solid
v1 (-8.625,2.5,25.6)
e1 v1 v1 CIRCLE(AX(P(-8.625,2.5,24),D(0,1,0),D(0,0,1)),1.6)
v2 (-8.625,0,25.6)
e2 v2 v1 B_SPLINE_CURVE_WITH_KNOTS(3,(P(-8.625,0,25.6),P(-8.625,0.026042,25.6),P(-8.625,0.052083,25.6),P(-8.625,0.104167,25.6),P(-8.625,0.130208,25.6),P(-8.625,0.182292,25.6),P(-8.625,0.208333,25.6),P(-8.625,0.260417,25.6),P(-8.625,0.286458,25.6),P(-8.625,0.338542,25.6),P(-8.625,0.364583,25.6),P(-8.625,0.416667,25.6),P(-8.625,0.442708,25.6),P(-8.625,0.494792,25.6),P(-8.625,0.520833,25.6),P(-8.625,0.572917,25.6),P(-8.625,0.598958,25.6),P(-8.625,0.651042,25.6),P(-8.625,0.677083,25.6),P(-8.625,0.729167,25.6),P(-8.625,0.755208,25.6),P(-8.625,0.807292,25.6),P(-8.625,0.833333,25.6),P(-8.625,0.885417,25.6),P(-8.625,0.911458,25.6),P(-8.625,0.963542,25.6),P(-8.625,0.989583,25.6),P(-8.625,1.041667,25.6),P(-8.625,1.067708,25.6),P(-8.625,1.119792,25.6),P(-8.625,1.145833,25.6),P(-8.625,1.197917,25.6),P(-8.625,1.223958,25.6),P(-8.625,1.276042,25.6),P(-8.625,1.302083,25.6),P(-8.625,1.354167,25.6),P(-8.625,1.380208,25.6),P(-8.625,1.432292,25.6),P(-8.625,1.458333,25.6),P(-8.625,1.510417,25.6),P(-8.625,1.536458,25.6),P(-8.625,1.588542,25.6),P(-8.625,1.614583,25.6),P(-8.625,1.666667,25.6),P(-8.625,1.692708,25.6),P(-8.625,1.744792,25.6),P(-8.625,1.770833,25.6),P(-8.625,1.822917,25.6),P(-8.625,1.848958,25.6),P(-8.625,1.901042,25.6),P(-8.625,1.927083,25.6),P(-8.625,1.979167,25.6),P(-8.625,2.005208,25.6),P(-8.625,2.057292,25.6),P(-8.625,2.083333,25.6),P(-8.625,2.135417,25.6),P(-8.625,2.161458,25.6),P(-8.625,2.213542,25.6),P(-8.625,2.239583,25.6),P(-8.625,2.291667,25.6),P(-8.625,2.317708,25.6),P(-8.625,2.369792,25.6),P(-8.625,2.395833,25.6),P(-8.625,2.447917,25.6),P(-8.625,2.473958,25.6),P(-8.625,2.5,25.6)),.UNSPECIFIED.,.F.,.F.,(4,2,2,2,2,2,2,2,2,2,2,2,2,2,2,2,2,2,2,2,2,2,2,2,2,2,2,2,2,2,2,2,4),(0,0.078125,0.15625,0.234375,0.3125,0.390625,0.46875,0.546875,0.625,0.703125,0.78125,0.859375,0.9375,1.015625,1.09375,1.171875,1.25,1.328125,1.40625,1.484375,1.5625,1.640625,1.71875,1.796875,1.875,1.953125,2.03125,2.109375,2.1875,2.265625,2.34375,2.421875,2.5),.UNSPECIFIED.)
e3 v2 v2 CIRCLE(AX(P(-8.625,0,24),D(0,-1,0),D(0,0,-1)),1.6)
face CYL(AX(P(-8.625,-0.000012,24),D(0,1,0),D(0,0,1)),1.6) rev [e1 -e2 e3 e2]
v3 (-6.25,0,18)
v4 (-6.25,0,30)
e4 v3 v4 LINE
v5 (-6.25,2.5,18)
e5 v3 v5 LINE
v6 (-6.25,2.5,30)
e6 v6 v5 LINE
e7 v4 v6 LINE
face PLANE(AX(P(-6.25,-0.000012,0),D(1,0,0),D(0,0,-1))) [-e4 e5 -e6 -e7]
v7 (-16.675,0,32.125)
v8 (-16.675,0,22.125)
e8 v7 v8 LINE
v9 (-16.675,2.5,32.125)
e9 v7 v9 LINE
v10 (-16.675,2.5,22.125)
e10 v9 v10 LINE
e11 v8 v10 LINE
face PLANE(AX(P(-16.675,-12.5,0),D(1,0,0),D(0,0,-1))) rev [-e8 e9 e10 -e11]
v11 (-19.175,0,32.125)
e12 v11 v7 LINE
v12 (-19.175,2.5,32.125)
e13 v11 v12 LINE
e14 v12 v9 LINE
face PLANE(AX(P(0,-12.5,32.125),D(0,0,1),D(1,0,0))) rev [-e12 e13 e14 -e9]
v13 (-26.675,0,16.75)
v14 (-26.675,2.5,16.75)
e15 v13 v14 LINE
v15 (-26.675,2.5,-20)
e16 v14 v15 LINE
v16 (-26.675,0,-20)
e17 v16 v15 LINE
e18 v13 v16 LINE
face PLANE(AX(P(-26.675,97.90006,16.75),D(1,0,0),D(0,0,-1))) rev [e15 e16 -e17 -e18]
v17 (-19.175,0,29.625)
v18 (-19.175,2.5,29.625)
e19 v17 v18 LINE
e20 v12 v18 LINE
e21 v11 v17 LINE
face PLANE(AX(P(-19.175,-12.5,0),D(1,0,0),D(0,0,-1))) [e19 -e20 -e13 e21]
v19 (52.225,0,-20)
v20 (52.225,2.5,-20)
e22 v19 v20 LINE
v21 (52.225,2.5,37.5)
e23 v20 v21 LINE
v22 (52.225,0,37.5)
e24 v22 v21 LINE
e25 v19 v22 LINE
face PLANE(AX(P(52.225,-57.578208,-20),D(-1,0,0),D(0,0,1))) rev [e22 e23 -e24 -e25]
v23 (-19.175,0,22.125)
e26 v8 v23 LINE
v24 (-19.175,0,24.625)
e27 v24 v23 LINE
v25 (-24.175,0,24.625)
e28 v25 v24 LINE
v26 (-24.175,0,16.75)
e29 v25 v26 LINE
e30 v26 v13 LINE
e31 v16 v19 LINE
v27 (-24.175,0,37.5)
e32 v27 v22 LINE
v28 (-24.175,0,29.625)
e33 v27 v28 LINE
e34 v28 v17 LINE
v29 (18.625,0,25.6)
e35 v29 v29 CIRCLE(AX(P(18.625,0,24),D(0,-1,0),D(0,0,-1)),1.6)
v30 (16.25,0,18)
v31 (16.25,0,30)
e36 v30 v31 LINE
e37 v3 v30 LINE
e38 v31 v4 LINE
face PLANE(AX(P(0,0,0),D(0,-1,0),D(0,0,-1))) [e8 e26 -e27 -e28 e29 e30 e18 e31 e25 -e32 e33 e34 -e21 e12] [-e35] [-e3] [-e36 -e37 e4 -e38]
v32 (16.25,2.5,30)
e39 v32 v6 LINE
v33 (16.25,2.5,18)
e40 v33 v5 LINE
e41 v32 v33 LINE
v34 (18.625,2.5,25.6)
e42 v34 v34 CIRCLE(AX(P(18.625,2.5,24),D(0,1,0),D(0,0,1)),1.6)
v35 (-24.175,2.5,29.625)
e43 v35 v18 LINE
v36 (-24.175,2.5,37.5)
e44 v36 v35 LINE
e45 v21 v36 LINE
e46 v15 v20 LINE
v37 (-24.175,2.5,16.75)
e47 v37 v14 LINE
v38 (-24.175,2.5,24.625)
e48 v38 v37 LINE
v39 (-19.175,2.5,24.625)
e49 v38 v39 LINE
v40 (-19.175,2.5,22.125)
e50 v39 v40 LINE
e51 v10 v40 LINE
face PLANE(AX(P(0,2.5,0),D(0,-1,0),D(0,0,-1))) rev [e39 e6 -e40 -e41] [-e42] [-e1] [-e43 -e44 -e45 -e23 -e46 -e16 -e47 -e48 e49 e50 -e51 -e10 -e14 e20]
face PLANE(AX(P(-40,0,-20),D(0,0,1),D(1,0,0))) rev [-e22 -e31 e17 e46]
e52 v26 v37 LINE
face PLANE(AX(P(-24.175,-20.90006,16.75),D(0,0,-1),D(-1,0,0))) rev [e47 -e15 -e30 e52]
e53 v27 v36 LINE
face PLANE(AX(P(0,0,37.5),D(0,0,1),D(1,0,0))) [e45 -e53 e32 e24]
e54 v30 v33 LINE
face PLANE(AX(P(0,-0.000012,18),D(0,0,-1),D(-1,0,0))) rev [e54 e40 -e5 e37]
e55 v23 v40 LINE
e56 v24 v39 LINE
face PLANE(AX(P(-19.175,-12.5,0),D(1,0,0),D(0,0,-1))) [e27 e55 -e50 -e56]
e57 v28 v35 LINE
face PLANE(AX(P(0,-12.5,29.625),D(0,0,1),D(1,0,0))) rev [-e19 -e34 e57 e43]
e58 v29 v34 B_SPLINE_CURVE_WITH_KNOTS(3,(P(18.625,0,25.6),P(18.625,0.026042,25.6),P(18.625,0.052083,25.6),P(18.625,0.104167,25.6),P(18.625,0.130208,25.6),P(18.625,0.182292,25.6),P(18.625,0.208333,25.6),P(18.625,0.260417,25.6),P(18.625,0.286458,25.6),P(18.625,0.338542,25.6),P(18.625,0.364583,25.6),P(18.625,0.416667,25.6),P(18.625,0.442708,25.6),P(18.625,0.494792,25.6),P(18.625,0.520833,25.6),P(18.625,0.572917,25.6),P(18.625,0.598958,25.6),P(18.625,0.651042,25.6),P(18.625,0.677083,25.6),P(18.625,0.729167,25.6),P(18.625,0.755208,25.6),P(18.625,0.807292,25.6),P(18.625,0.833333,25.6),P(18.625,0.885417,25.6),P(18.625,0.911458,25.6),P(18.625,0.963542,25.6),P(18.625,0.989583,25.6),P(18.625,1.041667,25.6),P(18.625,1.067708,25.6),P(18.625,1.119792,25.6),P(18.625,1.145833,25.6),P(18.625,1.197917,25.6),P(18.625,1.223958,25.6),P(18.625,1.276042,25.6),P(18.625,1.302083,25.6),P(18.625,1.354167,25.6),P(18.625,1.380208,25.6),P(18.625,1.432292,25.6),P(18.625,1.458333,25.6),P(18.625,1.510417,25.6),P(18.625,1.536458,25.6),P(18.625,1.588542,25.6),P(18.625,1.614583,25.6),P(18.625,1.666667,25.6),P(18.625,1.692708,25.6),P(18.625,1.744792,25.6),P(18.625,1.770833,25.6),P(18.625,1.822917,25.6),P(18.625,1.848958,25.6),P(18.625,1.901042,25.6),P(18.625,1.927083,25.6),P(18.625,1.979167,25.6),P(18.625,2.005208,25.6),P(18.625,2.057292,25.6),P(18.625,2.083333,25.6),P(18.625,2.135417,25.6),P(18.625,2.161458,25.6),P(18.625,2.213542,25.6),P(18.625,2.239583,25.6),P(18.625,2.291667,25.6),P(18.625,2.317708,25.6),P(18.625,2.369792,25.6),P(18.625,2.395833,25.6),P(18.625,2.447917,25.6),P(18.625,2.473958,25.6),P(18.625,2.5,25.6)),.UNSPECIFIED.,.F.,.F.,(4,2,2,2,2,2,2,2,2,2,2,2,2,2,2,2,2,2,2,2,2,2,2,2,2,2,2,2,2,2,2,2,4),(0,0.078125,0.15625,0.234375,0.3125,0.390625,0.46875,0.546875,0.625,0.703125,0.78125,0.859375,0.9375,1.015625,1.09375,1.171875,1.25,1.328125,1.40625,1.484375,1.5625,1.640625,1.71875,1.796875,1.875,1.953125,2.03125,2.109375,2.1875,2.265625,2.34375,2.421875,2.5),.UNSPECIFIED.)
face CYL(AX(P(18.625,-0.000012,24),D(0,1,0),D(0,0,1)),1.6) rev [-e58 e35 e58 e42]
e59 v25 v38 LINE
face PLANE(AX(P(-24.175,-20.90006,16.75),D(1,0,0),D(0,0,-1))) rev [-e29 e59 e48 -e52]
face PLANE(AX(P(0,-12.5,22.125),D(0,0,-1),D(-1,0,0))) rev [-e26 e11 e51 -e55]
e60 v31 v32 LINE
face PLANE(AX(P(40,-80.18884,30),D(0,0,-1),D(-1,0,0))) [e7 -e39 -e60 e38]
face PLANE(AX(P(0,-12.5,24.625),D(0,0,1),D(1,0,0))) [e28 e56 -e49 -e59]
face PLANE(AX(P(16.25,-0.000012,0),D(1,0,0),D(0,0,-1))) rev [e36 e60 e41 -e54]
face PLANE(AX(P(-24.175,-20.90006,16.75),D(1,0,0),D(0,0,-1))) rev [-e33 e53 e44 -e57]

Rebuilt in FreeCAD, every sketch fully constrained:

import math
import FreeCAD as App
import Part
import Sketcher
from FreeCAD import Vector


def edges_at(feature, points):
    """Names of the edges that pass closest to the given points."""
    edges = feature.Shape.Edges
    near = lambda p: min(range(len(edges)), key=lambda i: edges[i].distToShape(Part.Vertex(*p))[0])
    return sorted({f"Edge{near(p) + 1}" for p in points})


def add_polygon(sketch, points):
    """Adds a closed chain of lines whose ends are joined by coincident constraints."""
    first, n = sketch.GeometryCount, len(points)
    for a, b in zip(points, points[1:] + points[:1]):
        sketch.addGeometry(Part.LineSegment(App.Vector(*a, 0), App.Vector(*b, 0)), False)
    for i in range(n):
        sketch.addConstraint(Sketcher.Constraint("Coincident", first + i, 2, first + (i + 1) % n, 1))

doc = App.newDocument("Part")
params = doc.addObject("Spreadsheet::Sheet", "Params")
for row, (alias, value) in enumerate([
    ("sketch1_width", "80 mm"),
    ("sketch1_height", "60 mm"),
    ("pad1_length", "2.5 mm"),
    ("sketch2_diameter", "3.2 mm"),
    ("sketch2_height", "12 mm"),
    ("sketch2_width", "22.5 mm"),
    ("sketch3_width", "2.5 mm"),
    ("sketch3_height", "20.5 mm"),
    ("pad2_length", "66.5 mm"),
    ("sketch4_width", "80 mm"),
    ("sketch4_height", "5.5 mm"),
    ("pad3_length", "2.5 mm"),
    ("sketch5_width", "2.5 mm"),
    ("sketch5_height", "5.5 mm"),
    ("pad4_length", "66.5 mm"),
    ("sketch6_width", "2.5 mm"),
    ("sketch6_height", "5.5 mm"),
    ("pocket2_length", "66.5 mm"),
    ("sketch7_width", "2.5 mm"),
    ("pad5_length", "66.5 mm"),
    ("sketch8_diameter", "9.5 mm"),
    ("pocket3_length", "2.5 mm"),
    ("sketch9_height", "23 mm"),
    ("sketch9_width", "2.5 mm"),
    ("pad6_length", "8 mm"),
    ("sketch10_width", "2.5 mm"),
    ("sketch10_height", "74.5 mm"),
    ("pad7_length", "2 mm"),
    ("sketch11_diameter", "3.2 mm"),
    ("pocket4_length", "2.5 mm"),
    ("sketch12_width", "80 mm"),
    ("sketch12_height", "2.5 mm"),
    ("pad8_length", "2 mm"),
    ("sketch13_width", "74.5 mm"),
    ("sketch13_height", "4.25 mm"),
    ("pocket5_length", "2.5 mm"),
    ("fillet_radius", "5 mm"),
    ("sketch14_height", "67.5 mm"),
    ("pad9_length", "2.5 mm"),
    ("sketch15_height", "10 mm"),
    ("sketch16_width", "2.5 mm"),
    ("sketch16_height", "20.75 mm"),
    ("pad10_length", "74.5 mm"),
    ("sketch17_diameter", "3.2 mm"),
    ("sketch17_radius", "4.75 mm"),
    ("pocket7_length", "2.5 mm"),
    ("sketch18_width", "2.5 mm"),
    ("sketch18_height", "20.75 mm"),
    ("pocket8_length", "74.5 mm"),
    ("sketch19_height", "20.75 mm"),
    ("pocket9_length", "2.5 mm"),
    ("fillet2_radius", "6 mm"),
    ("sketch20_height", "57.5 mm"),
    ("pocket10_length", "2.5 mm"),
    ("sketch21_width", "3 mm"),
    ("sketch21_height", "57.5 mm"),
    ("pocket11_length", "2.5 mm"),
    ("sketch22_width", "5 mm"),
    ("sketch22_height", "10 mm"),
    ("pocket12_length", "2.5 mm"),
    ("sketch23_width", "2.5 mm"),
    ("sketch23_height", "20.75 mm"),
    ("pocket13_length", "57.375 mm"),
], start=1):
    params.set(f"A{row}", alias)
    params.set(f"B{row}", "=" + value)
    params.setAlias(f"B{row}", alias)

body = doc.addObject("PartDesign::Body", "Body")

# Sketch on XZ plane
sketch1 = body.newObject("Sketcher::SketchObject", "Sketch")
sketch1.AttachmentSupport = (doc.getObject("XZ_Plane"), [""])
sketch1.MapMode = "FlatFace"
add_polygon(sketch1, [(-40, -30), (-40, 30), (40, 30), (40, -30)])  # lines 0-3
sketch1.addConstraint([
    Sketcher.Constraint("Vertical", 0),
    Sketcher.Constraint("Horizontal", 1),
    Sketcher.Constraint("Vertical", 2),
    Sketcher.Constraint("Horizontal", 3),
    Sketcher.Constraint("Symmetric", 0, 2, 2, 2, -1, 1),
    Sketcher.Constraint("DistanceX", 1, 1, 1, 2, 80.0),
    Sketcher.Constraint("DistanceY", 0, 1, 0, 2, 60.0),
])
sketch1.setExpression("Constraints[9]", "Params.sketch1_width")
sketch1.setExpression("Constraints[10]", "Params.sketch1_height")
pad1 = body.newObject("PartDesign::Pad", "Pad")
pad1.Profile = sketch1
pad1.setExpression("Length", "Params.pad1_length")
pad1.Reversed = True

# Sketch on XZ plane
sketch2 = body.newObject("Sketcher::SketchObject", "Sketch001")
sketch2.AttachmentSupport = (doc.getObject("XZ_Plane"), [""])
sketch2.MapMode = "FlatFace"
add_polygon(sketch2, [(16.2, 18), (-6.2, 18), (-6.2, 30), (16.2, 30)])  # lines 0-3
sketch2.addGeometry(Part.Circle(Vector(-8.6, 24, 0), Vector(0, 0, 1), 1.6), False)  # 4
sketch2.addGeometry(Part.Circle(Vector(18.6, 24, 0), Vector(0, 0, 1), 1.6), False)  # 5
sketch2.addConstraint([
    Sketcher.Constraint("Horizontal", 0),
    Sketcher.Constraint("Vertical", 1),
    Sketcher.Constraint("Horizontal", 2),
    Sketcher.Constraint("Vertical", 3),
    Sketcher.Constraint("Equal", 4, 5),
    Sketcher.Constraint("Horizontal", 4, 3, 5, 3),
    Sketcher.Constraint("Diameter", 4, 3.2),
    Sketcher.Constraint("DistanceY", 1, 1, 1, 2, 12.0),
    Sketcher.Constraint("DistanceX", 0, 2, 0, 1, 22.5),
    Sketcher.Constraint("DistanceY", -1, 1, 4, 3, 24.0),
    Sketcher.Constraint("DistanceY", -1, 1, 0, 2, 18.0),
    Sketcher.Constraint("DistanceX", 0, 2, -1, 1, 6.25),
    Sketcher.Constraint("DistanceX", 4, 3, 5, 3, 27.25),
    Sketcher.Constraint("DistanceX", 4, 3, -1, 1, 8.625),
])
sketch2.setExpression("Constraints[10]", "Params.sketch2_diameter")
sketch2.setExpression("Constraints[11]", "Params.sketch2_height")
sketch2.setExpression("Constraints[12]", "Params.sketch2_width")
pocket1 = body.newObject("PartDesign::Pocket", "Pocket")
pocket1.Profile = sketch2
pocket1.Type = "ThroughAll"
pocket1.Midplane = True

# Sketch on XZ plane
sketch3 = body.newObject("Sketcher::SketchObject", "Sketch002")
sketch3.AttachmentSupport = (doc.getObject("XZ_Plane"), [""])
sketch3.MapMode = "FlatFace"
sketch3.AttachmentOffset = App.Placement(Vector(0, 0, -2.5), App.Rotation())
add_polygon(sketch3, [(-40, 9.5), (-40, 30), (-37.5, 30), (-37.5, 9.5)])  # lines 0-3
sketch3.addConstraint([
    Sketcher.Constraint("Vertical", 0),
    Sketcher.Constraint("Horizontal", 1),
    Sketcher.Constraint("Vertical", 2),
    Sketcher.Constraint("Horizontal", 3),
    Sketcher.Constraint("DistanceX", 1, 1, 1, 2, 2.5),
    Sketcher.Constraint("DistanceY", 0, 1, 0, 2, 20.5),
    Sketcher.Constraint("DistanceX", 0, 2, -1, 1, 40.0),
    Sketcher.Constraint("DistanceY", -1, 1, 0, 2, 30.0),
])
sketch3.setExpression("Constraints[8]", "Params.sketch3_width")
sketch3.setExpression("Constraints[9]", "Params.sketch3_height")
pad2 = body.newObject("PartDesign::Pad", "Pad001")
pad2.Profile = sketch3
pad2.setExpression("Length", "Params.pad2_length")
pad2.Reversed = True

# Sketch on XZ plane
sketch4 = body.newObject("Sketcher::SketchObject", "Sketch003")
sketch4.AttachmentSupport = (doc.getObject("XZ_Plane"), [""])
sketch4.MapMode = "FlatFace"
sketch4.AttachmentOffset = App.Placement(Vector(0, 0, -2.5), App.Rotation())
add_polygon(sketch4, [(-40, 30), (-40, 36), (40, 36), (40, 30)])  # lines 0-3
sketch4.addConstraint([
    Sketcher.Constraint("Vertical", 0),
    Sketcher.Constraint("Horizontal", 1),
    Sketcher.Constraint("Vertical", 2),
    Sketcher.Constraint("Horizontal", 3),
    Sketcher.Constraint("DistanceX", 1, 1, 1, 2, 80.0),
    Sketcher.Constraint("DistanceY", 0, 1, 0, 2, 5.5),
    Sketcher.Constraint("DistanceX", 0, 2, -1, 1, 40.0),
    Sketcher.Constraint("DistanceY", -1, 1, 2, 2, 30.0),
])
sketch4.setExpression("Constraints[8]", "Params.sketch4_width")
sketch4.setExpression("Constraints[9]", "Params.sketch4_height")
pad3 = body.newObject("PartDesign::Pad", "Pad002")
pad3.Profile = sketch4
pad3.setExpression("Length", "Params.pad3_length")

# Sketch on XZ plane
sketch5 = body.newObject("Sketcher::SketchObject", "Sketch004")
sketch5.AttachmentSupport = (doc.getObject("XZ_Plane"), [""])
sketch5.MapMode = "FlatFace"
sketch5.AttachmentOffset = App.Placement(Vector(0, 0, -2.5), App.Rotation())
add_polygon(sketch5, [(-40, 30), (-40, 35.5), (-37.5, 35.5), (-37.5, 30)])  # lines 0-3
sketch5.addConstraint([
    Sketcher.Constraint("Vertical", 0),
    Sketcher.Constraint("Horizontal", 1),
    Sketcher.Constraint("Vertical", 2),
    Sketcher.Constraint("Horizontal", 3),
    Sketcher.Constraint("DistanceX", 1, 1, 1, 2, 2.5),
    Sketcher.Constraint("DistanceY", 0, 1, 0, 2, 5.5),
    Sketcher.Constraint("DistanceX", 0, 2, -1, 1, 40.0),
    Sketcher.Constraint("DistanceY", -1, 1, 2, 2, 30.0),
])
sketch5.setExpression("Constraints[8]", "Params.sketch5_width")
sketch5.setExpression("Constraints[9]", "Params.sketch5_height")
pad4 = body.newObject("PartDesign::Pad", "Pad003")
pad4.Profile = sketch5
pad4.setExpression("Length", "Params.pad4_length")
pad4.Reversed = True

# Sketch on XZ plane
sketch6 = body.newObject("Sketcher::SketchObject", "Sketch005")
sketch6.AttachmentSupport = (doc.getObject("XZ_Plane"), [""])
sketch6.MapMode = "FlatFace"
sketch6.AttachmentOffset = App.Placement(Vector(0, 0, -69), App.Rotation())
add_polygon(sketch6, [(-40, 9.5), (-40, 15), (-37.5, 15), (-37.5, 9.5)])  # lines 0-3
sketch6.addConstraint([
    Sketcher.Constraint("Vertical", 0),
    Sketcher.Constraint("Horizontal", 1),
    Sketcher.Constraint("Vertical", 2),
    Sketcher.Constraint("Horizontal", 3),
    Sketcher.Constraint("DistanceX", 1, 1, 1, 2, 2.5),
    Sketcher.Constraint("DistanceY", 0, 1, 0, 2, 5.5),
    Sketcher.Constraint("DistanceX", 0, 2, -1, 1, 40.0),
    Sketcher.Constraint("DistanceY", -1, 1, 0, 2, 15.0),
])
sketch6.setExpression("Constraints[8]", "Params.sketch6_width")
sketch6.setExpression("Constraints[9]", "Params.sketch6_height")
pocket2 = body.newObject("PartDesign::Pocket", "Pocket001")
pocket2.Profile = sketch6
pocket2.setExpression("Length", "Params.pocket2_length")
pocket2.Reversed = True

# Sketch on XZ plane
sketch7 = body.newObject("Sketcher::SketchObject", "Sketch006")
sketch7.AttachmentSupport = (doc.getObject("XZ_Plane"), [""])
sketch7.MapMode = "FlatFace"
sketch7.AttachmentOffset = App.Placement(Vector(0, 0, -2.5), App.Rotation())
add_polygon(sketch7, [(-40, 12.5), (-40, 15), (-37.5, 15), (-37.5, 12.5)])  # lines 0-3
sketch7.addConstraint([
    Sketcher.Constraint("Vertical", 0),
    Sketcher.Constraint("Horizontal", 1),
    Sketcher.Constraint("Vertical", 2),
    Sketcher.Constraint("Horizontal", 3),
    Sketcher.Constraint("Equal", 3, 0),
    Sketcher.Constraint("DistanceX", 1, 1, 1, 2, 2.5),
    Sketcher.Constraint("DistanceX", 0, 2, -1, 1, 40.0),
    Sketcher.Constraint("DistanceY", -1, 1, 0, 2, 15.0),
])
sketch7.setExpression("Constraints[9]", "Params.sketch7_width")
pad5 = body.newObject("PartDesign::Pad", "Pad004")
pad5.Profile = sketch7
pad5.setExpression("Length", "Params.pad5_length")
pad5.Reversed = True

# Sketch on YZ plane
sketch8 = body.newObject("Sketcher::SketchObject", "Sketch007")
sketch8.AttachmentSupport = (doc.getObject("YZ_Plane"), [""])
sketch8.MapMode = "FlatFace"
sketch8.AttachmentOffset = App.Placement(Vector(0, 0, -37.5), App.Rotation())
sketch8.addGeometry(Part.Circle(Vector(54, 24, 0), Vector(0, 0, 1), 4.8), False)
sketch8.addConstraint([
    Sketcher.Constraint("Diameter", 0, 9.5),
    Sketcher.Constraint("DistanceX", -1, 1, 0, 3, 54.0),
    Sketcher.Constraint("DistanceY", -1, 1, 0, 3, 24.0),
])
sketch8.setExpression("Constraints[0]", "Params.sketch8_diameter")
pocket3 = body.newObject("PartDesign::Pocket", "Pocket002")
pocket3.Profile = sketch8
pocket3.setExpression("Length", "Params.pocket3_length")

# Sketch on XZ plane
sketch9 = body.newObject("Sketcher::SketchObject", "Sketch008")
sketch9.AttachmentSupport = (doc.getObject("XZ_Plane"), [""])
sketch9.MapMode = "FlatFace"
sketch9.AttachmentOffset = App.Placement(Vector(0, 0, -69), App.Rotation())
add_polygon(sketch9, [(-40, 12.5), (-40, 35.5), (-37.5, 35.5), (-37.5, 12.5)])  # lines 0-3
sketch9.addConstraint([
    Sketcher.Constraint("Vertical", 0),
    Sketcher.Constraint("Horizontal", 1),
    Sketcher.Constraint("Vertical", 2),
    Sketcher.Constraint("Horizontal", 3),
    Sketcher.Constraint("DistanceY", 0, 1, 0, 2, 23.0),
    Sketcher.Constraint("DistanceX", 1, 1, 1, 2, 2.5),
    Sketcher.Constraint("DistanceX", 0, 2, -1, 1, 40.0),
    Sketcher.Constraint("DistanceY", -1, 1, 0, 2, 35.5),
])
sketch9.setExpression("Constraints[8]", "Params.sketch9_height")
sketch9.setExpression("Constraints[9]", "Params.sketch9_width")
pad6 = body.newObject("PartDesign::Pad", "Pad005")
pad6.Profile = sketch9
pad6.setExpression("Length", "Params.pad6_length")
pad6.Reversed = True

# Sketch on XY plane
sketch10 = body.newObject("Sketcher::SketchObject", "Sketch009")
sketch10.AttachmentSupport = (doc.getObject("XY_Plane"), [""])
sketch10.MapMode = "FlatFace"
sketch10.AttachmentOffset = App.Placement(Vector(0, 0, 35.5), App.Rotation())
add_polygon(sketch10, [(-40, 77), (-40, 2.5), (-37.5, 2.5), (-37.5, 77)])  # lines 0-3
sketch10.addConstraint([
    Sketcher.Constraint("Vertical", 0),
    Sketcher.Constraint("Horizontal", 1),
    Sketcher.Constraint("Vertical", 2),
    Sketcher.Constraint("Horizontal", 3),
    Sketcher.Constraint("DistanceX", 1, 1, 1, 2, 2.5),
    Sketcher.Constraint("DistanceY", 0, 2, 0, 1, 74.5),
    Sketcher.Constraint("DistanceX", 0, 2, -1, 1, 40.0),
    Sketcher.Constraint("DistanceY", -1, 1, 2, 2, 77.0),
])
sketch10.setExpression("Constraints[8]", "Params.sketch10_width")
sketch10.setExpression("Constraints[9]", "Params.sketch10_height")
pad7 = body.newObject("PartDesign::Pad", "Pad006")
pad7.Profile = sketch10
pad7.setExpression("Length", "Params.pad7_length")

# Sketch on YZ plane
sketch11 = body.newObject("Sketcher::SketchObject", "Sketch010")
sketch11.AttachmentSupport = (doc.getObject("YZ_Plane"), [""])
sketch11.MapMode = "FlatFace"
sketch11.AttachmentOffset = App.Placement(Vector(0, 0, -40), App.Rotation())
sketch11.addGeometry([
    Part.Circle(Vector(36.5, 32, 0), Vector(0, 0, 1), 1.6),
    Part.Circle(Vector(71.5, 32, 0), Vector(0, 0, 1), 1.6),
], False)
sketch11.addConstraint([
    Sketcher.Constraint("Equal", 0, 1),
    Sketcher.Constraint("Horizontal", 0, 3, 1, 3),
    Sketcher.Constraint("Diameter", 0, 3.2),
    Sketcher.Constraint("DistanceY", -1, 1, 0, 3, 32.0),
    Sketcher.Constraint("DistanceX", 0, 3, 1, 3, 35.0),
    Sketcher.Constraint("DistanceX", -1, 1, 0, 3, 36.5),
])
sketch11.setExpression("Constraints[2]", "Params.sketch11_diameter")
pocket4 = body.newObject("PartDesign::Pocket", "Pocket003")
pocket4.Profile = sketch11
pocket4.setExpression("Length", "Params.pocket4_length")
pocket4.Reversed = True

# Sketch on XY plane
sketch12 = body.newObject("Sketcher::SketchObject", "Sketch011")
sketch12.AttachmentSupport = (doc.getObject("XY_Plane"), [""])
sketch12.MapMode = "FlatFace"
sketch12.AttachmentOffset = App.Placement(Vector(0, 0, 35.5), App.Rotation())
add_polygon(sketch12, [(-40, 2.5), (-40, 0), (40, 0), (40, 2.5)])  # lines 0-3
sketch12.addConstraint([
    Sketcher.Constraint("Vertical", 0),
    Sketcher.Constraint("Horizontal", 1),
    Sketcher.Constraint("Vertical", 2),
    Sketcher.Constraint("Horizontal", 3),
    Sketcher.Constraint("Symmetric", 0, 2, 1, 2, -1, 1),
    Sketcher.Constraint("DistanceX", 1, 1, 1, 2, 80.0),
    Sketcher.Constraint("DistanceY", 0, 2, 0, 1, 2.5),
])
sketch12.setExpression("Constraints[9]", "Params.sketch12_width")
sketch12.setExpression("Constraints[10]", "Params.sketch12_height")
pad8 = body.newObject("PartDesign::Pad", "Pad007")
pad8.Profile = sketch12
pad8.setExpression("Length", "Params.pad8_length")

# Sketch on YZ plane
sketch13 = body.newObject("Sketcher::SketchObject", "Sketch012")
sketch13.AttachmentSupport = (doc.getObject("YZ_Plane"), [""])
sketch13.MapMode = "FlatFace"
sketch13.AttachmentOffset = App.Placement(Vector(0, 0, -37.5), App.Rotation())
add_polygon(sketch13, [(77, 16.8), (2.5, 16.8), (2.5, 12.5), (77, 12.5)])  # lines 0-3
sketch13.addConstraint([
    Sketcher.Constraint("Horizontal", 0),
    Sketcher.Constraint("Vertical", 1),
    Sketcher.Constraint("Horizontal", 2),
    Sketcher.Constraint("Vertical", 3),
    Sketcher.Constraint("DistanceX", 0, 2, 0, 1, 74.5),
    Sketcher.Constraint("DistanceX", -1, 1, 2, 2, 77.0),
    Sketcher.Constraint("DistanceY", 1, 2, 1, 1, 4.25),
    Sketcher.Constraint("DistanceY", -1, 1, 1, 2, 12.5),
])
sketch13.setExpression("Constraints[8]", "Params.sketch13_width")
sketch13.setExpression("Constraints[10]", "Params.sketch13_height")
pocket5 = body.newObject("PartDesign::Pocket", "Pocket004")
pocket5.Profile = sketch13
pocket5.setExpression("Length", "Params.pocket5_length")
doc.recompute()

fillet = body.newObject("PartDesign::Fillet", "Fillet")
fillet.Base = (pocket5, edges_at(pocket5, [(-38.75, 77, 37.5), (-38.75, 77, 16.75)]))
fillet.setExpression("Radius", "Params.fillet_radius")

# Sketch on XZ plane
sketch14 = body.newObject("Sketcher::SketchObject", "Sketch013")
sketch14.AttachmentSupport = (doc.getObject("XZ_Plane"), [""])
sketch14.MapMode = "FlatFace"
sketch14.AttachmentOffset = App.Placement(Vector(0, 0, -2.5), App.Rotation())
add_polygon(sketch14, [(40, -30), (40, 38), (55, 38), (55, -30)])  # lines 0-3
sketch14.addConstraint([
    Sketcher.Constraint("Vertical", 0),
    Sketcher.Constraint("Horizontal", 1),
    Sketcher.Constraint("Vertical", 2),
    Sketcher.Constraint("Horizontal", 3),
    Sketcher.Constraint("DistanceY", 0, 1, 0, 2, 67.5),
    Sketcher.Constraint("DistanceX", -1, 1, 0, 2, 40.0),
    Sketcher.Constraint("DistanceY", 2, 2, -1, 1, 30.0),
    Sketcher.Constraint("DistanceX", 1, 1, 1, 2, 15.225),
])
sketch14.setExpression("Constraints[8]", "Params.sketch14_height")
pad9 = body.newObject("PartDesign::Pad", "Pad008")
pad9.Profile = sketch14
pad9.setExpression("Length", "Params.pad9_length")

# Sketch on XZ plane
sketch15 = body.newObject("Sketcher::SketchObject", "Sketch014")
sketch15.AttachmentSupport = (doc.getObject("XZ_Plane"), [""])
sketch15.MapMode = "FlatFace"
sketch15.AttachmentOffset = App.Placement(Vector(0, 0, -2.5), App.Rotation())
add_polygon(sketch15, [(-40, -30), (-40, -20), (55, -20), (55, -30)])  # lines 0-3
sketch15.addConstraint([
    Sketcher.Constraint("Vertical", 0),
    Sketcher.Constraint("Horizontal", 1),
    Sketcher.Constraint("Vertical", 2),
    Sketcher.Constraint("Horizontal", 3),
    Sketcher.Constraint("DistanceY", 0, 1, 0, 2, 10.0),
    Sketcher.Constraint("DistanceX", 0, 2, -1, 1, 40.0),
    Sketcher.Constraint("DistanceY", 0, 2, -1, 1, 20.0),
    Sketcher.Constraint("DistanceX", 1, 1, 1, 2, 95.225),
])
sketch15.setExpression("Constraints[8]", "Params.sketch15_height")
pocket6 = body.newObject("PartDesign::Pocket", "Pocket005")
pocket6.Profile = sketch15
pocket6.Type = "ThroughAll"
pocket6.Reversed = True

# Sketch on XZ plane
sketch16 = body.newObject("Sketcher::SketchObject", "Sketch015")
sketch16.AttachmentSupport = (doc.getObject("XZ_Plane"), [""])
sketch16.MapMode = "FlatFace"
sketch16.AttachmentOffset = App.Placement(Vector(0, 0, -2.5), App.Rotation())
add_polygon(sketch16, [(-26.7, 16.8), (-26.7, 37.5), (-24.2, 37.5), (-24.2, 16.8)])  # lines 0-3
sketch16.addConstraint([
    Sketcher.Constraint("Vertical", 0),
    Sketcher.Constraint("Horizontal", 1),
    Sketcher.Constraint("Vertical", 2),
    Sketcher.Constraint("Horizontal", 3),
    Sketcher.Constraint("DistanceX", 1, 1, 1, 2, 2.5),
    Sketcher.Constraint("DistanceY", 0, 1, 0, 2, 20.75),
    Sketcher.Constraint("DistanceY", -1, 1, 0, 2, 37.5),
    Sketcher.Constraint("DistanceX", 0, 2, -1, 1, 26.675),
])
sketch16.setExpression("Constraints[8]", "Params.sketch16_width")
sketch16.setExpression("Constraints[9]", "Params.sketch16_height")
pad10 = body.newObject("PartDesign::Pad", "Pad009")
pad10.Profile = sketch16
pad10.setExpression("Length", "Params.pad10_length")
pad10.Reversed = True

# Sketch on YZ plane
sketch17 = body.newObject("Sketcher::SketchObject", "Sketch016")
sketch17.AttachmentSupport = (doc.getObject("YZ_Plane"), [""])
sketch17.MapMode = "FlatFace"
sketch17.AttachmentOffset = App.Placement(Vector(0, 0, -24.175), App.Rotation())
sketch17.addGeometry([
    Part.ArcOfCircle(Part.Circle(Vector(36.3, 24, 0), Vector(0, 0, 1), 4.7), math.radians(90), math.radians(180)),  # 0
    Part.ArcOfCircle(Part.Circle(Vector(36.3, 24, 0), Vector(0, 0, 1), 4.7), math.radians(180), math.radians(270)),  # 1
    Part.ArcOfCircle(Part.Circle(Vector(36.3, 24, 0), Vector(0, 0, 1), 4.8), math.radians(-90), math.radians(90)),  # 2
    Part.Circle(Vector(18.8, 32, 0), Vector(0, 0, 1), 1.6),  # 3
    Part.Circle(Vector(53.8, 32, 0), Vector(0, 0, 1), 1.6),  # 4
], False)
sketch17.addConstraint([
    Sketcher.Constraint("Tangent", 0, 2, 1, 1),
    Sketcher.Constraint("Tangent", 1, 2, 2, 1),
    Sketcher.Constraint("Tangent", 2, 2, 0, 1),
    Sketcher.Constraint("Equal", 3, 4),
    Sketcher.Constraint("Horizontal", 3, 3, 4, 3),
    Sketcher.Constraint("Horizontal", 2, 3, 0, 2),
    Sketcher.Constraint("Vertical", 2, 3, 1, 2),
    Sketcher.Constraint("Vertical", 1, 2, 2, 2),
    Sketcher.Constraint("Diameter", 3, 3.2),
    Sketcher.Constraint("Radius", 0, 4.75),
    Sketcher.Constraint("DistanceY", -1, 1, 0, 3, 24.0),
    Sketcher.Constraint("DistanceY", -1, 1, 3, 3, 32.0),
    Sketcher.Constraint("DistanceX", 3, 3, 4, 3, 35.0),
    Sketcher.Constraint("DistanceX", 3, 3, 0, 3, 17.5),
    Sketcher.Constraint("DistanceX", -1, 1, 0, 3, 36.275),
])
sketch17.setExpression("Constraints[8]", "Params.sketch17_diameter")
sketch17.setExpression("Constraints[9]", "Params.sketch17_radius")
pocket7 = body.newObject("PartDesign::Pocket", "Pocket006")
pocket7.Profile = sketch17
pocket7.setExpression("Length", "Params.pocket7_length")

# Sketch on XZ plane
sketch18 = body.newObject("Sketcher::SketchObject", "Sketch017")
sketch18.AttachmentSupport = (doc.getObject("XZ_Plane"), [""])
sketch18.MapMode = "FlatFace"
sketch18.AttachmentOffset = App.Placement(Vector(0, 0, -77), App.Rotation())
add_polygon(sketch18, [(-40, 16.8), (-40, 37.5), (-37.5, 37.5), (-37.5, 16.8)])  # lines 0-3
sketch18.addConstraint([
    Sketcher.Constraint("Vertical", 0),
    Sketcher.Constraint("Horizontal", 1),
    Sketcher.Constraint("Vertical", 2),
    Sketcher.Constraint("Horizontal", 3),
    Sketcher.Constraint("DistanceX", 1, 1, 1, 2, 2.5),
    Sketcher.Constraint("DistanceX", 0, 2, -1, 1, 40.0),
    Sketcher.Constraint("DistanceY", 0, 1, 0, 2, 20.75),
    Sketcher.Constraint("DistanceY", -1, 1, 0, 2, 37.5),
])
sketch18.setExpression("Constraints[8]", "Params.sketch18_width")
sketch18.setExpression("Constraints[10]", "Params.sketch18_height")
pocket8 = body.newObject("PartDesign::Pocket", "Pocket007")
pocket8.Profile = sketch18
pocket8.setExpression("Length", "Params.pocket8_length")
pocket8.Reversed = True

# Sketch on YZ plane
sketch19 = body.newObject("Sketcher::SketchObject", "Sketch018")
sketch19.AttachmentSupport = (doc.getObject("YZ_Plane"), [""])
sketch19.MapMode = "FlatFace"
sketch19.AttachmentOffset = App.Placement(Vector(0, 0, -24.175), App.Rotation())
add_polygon(sketch19, [(77, 38), (57, 38), (57, 17), (77, 17)])  # lines 0-3
sketch19.addConstraint([
    Sketcher.Constraint("Horizontal", 0),
    Sketcher.Constraint("Vertical", 1),
    Sketcher.Constraint("Horizontal", 2),
    Sketcher.Constraint("Vertical", 3),
    Sketcher.Constraint("DistanceX", -1, 1, 2, 2, 77.0),
    Sketcher.Constraint("DistanceY", 1, 2, 1, 1, 20.75),
    Sketcher.Constraint("DistanceY", -1, 1, 0, 2, 37.5),
    Sketcher.Constraint("DistanceX", 0, 2, 0, 1, 19.625),
])
sketch19.setExpression("Constraints[9]", "Params.sketch19_height")
pocket9 = body.newObject("PartDesign::Pocket", "Pocket008")
pocket9.Profile = sketch19
pocket9.setExpression("Length", "Params.pocket9_length")
doc.recompute()

fillet2 = body.newObject("PartDesign::Fillet", "Fillet001")
fillet2.Base = (pocket9, edges_at(pocket9, [(-25.425, 57.375, 37.5), (-25.425, 57.375, 16.75)]))
fillet2.setExpression("Radius", "Params.fillet2_radius")

# Sketch on XZ plane
sketch20 = body.newObject("Sketcher::SketchObject", "Sketch019")
sketch20.AttachmentSupport = (doc.getObject("XZ_Plane"), [""])
sketch20.MapMode = "FlatFace"
sketch20.AttachmentOffset = App.Placement(Vector(0, 0, -2.5), App.Rotation())
add_polygon(sketch20, [(-40, -20), (-40, 38), (-27, 38), (-27, -20)])  # lines 0-3
sketch20.addConstraint([
    Sketcher.Constraint("Vertical", 0),
    Sketcher.Constraint("Horizontal", 1),
    Sketcher.Constraint("Vertical", 2),
    Sketcher.Constraint("Horizontal", 3),
    Sketcher.Constraint("DistanceY", 0, 1, 0, 2, 57.5),
    Sketcher.Constraint("DistanceX", 0, 2, -1, 1, 40.0),
    Sketcher.Constraint("DistanceY", 2, 2, -1, 1, 20.0),
    Sketcher.Constraint("DistanceX", 1, 1, 1, 2, 13.325),
])
sketch20.setExpression("Constraints[8]", "Params.sketch20_height")
pocket10 = body.newObject("PartDesign::Pocket", "Pocket009")
pocket10.Profile = sketch20
pocket10.setExpression("Length", "Params.pocket10_length")
pocket10.Reversed = True

# Sketch on XZ plane
sketch21 = body.newObject("Sketcher::SketchObject", "Sketch020")
sketch21.AttachmentSupport = (doc.getObject("XZ_Plane"), [""])
sketch21.MapMode = "FlatFace"
sketch21.AttachmentOffset = App.Placement(Vector(0, 0, -2.5), App.Rotation())
add_polygon(sketch21, [(52.2, -20), (52.2, 37.5), (55.2, 37.5), (55.2, -20)])  # lines 0-3
sketch21.addConstraint([
    Sketcher.Constraint("Vertical", 0),
    Sketcher.Constraint("Horizontal", 1),
    Sketcher.Constraint("Vertical", 2),
    Sketcher.Constraint("Horizontal", 3),
    Sketcher.Constraint("DistanceX", 1, 1, 1, 2, 3.0),
    Sketcher.Constraint("DistanceY", 0, 1, 0, 2, 57.5),
    Sketcher.Constraint("DistanceY", 2, 2, -1, 1, 20.0),
    Sketcher.Constraint("DistanceX", -1, 1, 0, 2, 52.225),
])
sketch21.setExpression("Constraints[8]", "Params.sketch21_width")
sketch21.setExpression("Constraints[9]", "Params.sketch21_height")
pocket11 = body.newObject("PartDesign::Pocket", "Pocket010")
pocket11.Profile = sketch21
pocket11.setExpression("Length", "Params.pocket11_length")
pocket11.Reversed = True

# Sketch on XZ plane
sketch22 = body.newObject("Sketcher::SketchObject", "Sketch021")
sketch22.AttachmentSupport = (doc.getObject("XZ_Plane"), [""])
sketch22.MapMode = "FlatFace"
sketch22.AttachmentOffset = App.Placement(Vector(0, 0, -2.5), App.Rotation())
add_polygon(sketch22, [(-24.2, 24.6), (-24.2, 29.6), (-19.2, 29.6), (-19.2, 32.1), (-16.7, 32.1), (-16.7, 22.1), (-19.2, 22.1), (-19.2, 24.6)])  # lines 0-7
sketch22.addConstraint([
    Sketcher.Constraint("Vertical", 0),
    Sketcher.Constraint("Horizontal", 1),
    Sketcher.Constraint("Vertical", 2),
    Sketcher.Constraint("Horizontal", 3),
    Sketcher.Constraint("Vertical", 4),
    Sketcher.Constraint("Horizontal", 5),
    Sketcher.Constraint("Vertical", 6),
    Sketcher.Constraint("Horizontal", 7),
    Sketcher.Constraint("Vertical", 2, 2, 5, 2),
    Sketcher.Constraint("Equal", 7, 0),
    Sketcher.Constraint("Equal", 5, 2),
    Sketcher.Constraint("Equal", 2, 6),
    Sketcher.Constraint("DistanceX", 1, 1, 1, 2, 5.0),
    Sketcher.Constraint("DistanceY", 4, 2, 4, 1, 10.0),
    Sketcher.Constraint("DistanceX", 0, 2, -1, 1, 24.175),
    Sketcher.Constraint("DistanceY", -1, 1, 0, 2, 29.625),
])
sketch22.setExpression("Constraints[20]", "Params.sketch22_width")
sketch22.setExpression("Constraints[21]", "Params.sketch22_height")
pocket12 = body.newObject("PartDesign::Pocket", "Pocket011")
pocket12.Profile = sketch22
pocket12.setExpression("Length", "Params.pocket12_length")
pocket12.Reversed = True

# Sketch on XZ plane
sketch23 = body.newObject("Sketcher::SketchObject", "Sketch022")
sketch23.AttachmentSupport = (doc.getObject("XZ_Plane"), [""])
sketch23.MapMode = "FlatFace"
sketch23.AttachmentOffset = App.Placement(Vector(0, 0, -57.375), App.Rotation())
add_polygon(sketch23, [(-26.7, 16.8), (-26.7, 37.5), (-24.2, 37.5), (-24.2, 16.8)])  # lines 0-3
sketch23.addConstraint([
    Sketcher.Constraint("Vertical", 0),
    Sketcher.Constraint("Horizontal", 1),
    Sketcher.Constraint("Vertical", 2),
    Sketcher.Constraint("Horizontal", 3),
    Sketcher.Constraint("DistanceX", 1, 1, 1, 2, 2.5),
    Sketcher.Constraint("DistanceY", 0, 1, 0, 2, 20.75),
    Sketcher.Constraint("DistanceY", -1, 1, 0, 2, 37.5),
    Sketcher.Constraint("DistanceX", 0, 2, -1, 1, 26.675),
])
sketch23.setExpression("Constraints[8]", "Params.sketch23_width")
sketch23.setExpression("Constraints[9]", "Params.sketch23_height")
pocket13 = body.newObject("PartDesign::Pocket", "Pocket012")
pocket13.Profile = sketch23
pocket13.setExpression("Length", "Params.pocket13_length")
pocket13.Reversed = True

doc.recompute()
